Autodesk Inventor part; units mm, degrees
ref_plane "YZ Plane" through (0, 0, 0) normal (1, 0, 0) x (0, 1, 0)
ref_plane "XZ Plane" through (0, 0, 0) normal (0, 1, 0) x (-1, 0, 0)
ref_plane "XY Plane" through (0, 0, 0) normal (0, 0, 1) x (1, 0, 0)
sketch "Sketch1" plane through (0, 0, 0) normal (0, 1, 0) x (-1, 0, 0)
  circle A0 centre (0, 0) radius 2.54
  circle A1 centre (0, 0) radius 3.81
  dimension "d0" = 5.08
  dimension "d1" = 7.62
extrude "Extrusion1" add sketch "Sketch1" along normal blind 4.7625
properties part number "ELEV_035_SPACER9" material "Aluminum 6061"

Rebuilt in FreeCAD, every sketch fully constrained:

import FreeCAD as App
import Part
import Sketcher
Q = App.Units.Quantity

doc = App.newDocument("Part")
body = doc.addObject("PartDesign::Body", "Body")

# Sketch on XZ plane
sketch1 = doc.addObject("Sketcher::SketchObject", "Sketch")
body.addObject(sketch1)
sketch1.AttachmentSupport = (doc.XZ_Plane, [""])
sketch1.MapMode = "FlatFace"
sketch1.addGeometry([
    Part.Circle(App.Vector(0, 0, 0), App.Vector(0, 0, 1), 3.8),
    Part.Circle(App.Vector(0, 0, 0), App.Vector(0, 0, 1), 2.5),
], False)
sketch1.addConstraint([
    Sketcher.Constraint("Coincident", 0, 3, -1, 1),
    Sketcher.Constraint("Coincident", 1, 3, -1, 1),
    Sketcher.Constraint("Diameter", 0, Q("0.3 in")),
    Sketcher.Constraint("Diameter", 1, Q("0.2 in")),
])
pad1 = doc.addObject("PartDesign::Pad", "Pad")
body.addObject(pad1)
pad1.Profile = sketch1
pad1.Length = Q("0.1875 in")
pad1.Reversed = True

doc.recompute()
